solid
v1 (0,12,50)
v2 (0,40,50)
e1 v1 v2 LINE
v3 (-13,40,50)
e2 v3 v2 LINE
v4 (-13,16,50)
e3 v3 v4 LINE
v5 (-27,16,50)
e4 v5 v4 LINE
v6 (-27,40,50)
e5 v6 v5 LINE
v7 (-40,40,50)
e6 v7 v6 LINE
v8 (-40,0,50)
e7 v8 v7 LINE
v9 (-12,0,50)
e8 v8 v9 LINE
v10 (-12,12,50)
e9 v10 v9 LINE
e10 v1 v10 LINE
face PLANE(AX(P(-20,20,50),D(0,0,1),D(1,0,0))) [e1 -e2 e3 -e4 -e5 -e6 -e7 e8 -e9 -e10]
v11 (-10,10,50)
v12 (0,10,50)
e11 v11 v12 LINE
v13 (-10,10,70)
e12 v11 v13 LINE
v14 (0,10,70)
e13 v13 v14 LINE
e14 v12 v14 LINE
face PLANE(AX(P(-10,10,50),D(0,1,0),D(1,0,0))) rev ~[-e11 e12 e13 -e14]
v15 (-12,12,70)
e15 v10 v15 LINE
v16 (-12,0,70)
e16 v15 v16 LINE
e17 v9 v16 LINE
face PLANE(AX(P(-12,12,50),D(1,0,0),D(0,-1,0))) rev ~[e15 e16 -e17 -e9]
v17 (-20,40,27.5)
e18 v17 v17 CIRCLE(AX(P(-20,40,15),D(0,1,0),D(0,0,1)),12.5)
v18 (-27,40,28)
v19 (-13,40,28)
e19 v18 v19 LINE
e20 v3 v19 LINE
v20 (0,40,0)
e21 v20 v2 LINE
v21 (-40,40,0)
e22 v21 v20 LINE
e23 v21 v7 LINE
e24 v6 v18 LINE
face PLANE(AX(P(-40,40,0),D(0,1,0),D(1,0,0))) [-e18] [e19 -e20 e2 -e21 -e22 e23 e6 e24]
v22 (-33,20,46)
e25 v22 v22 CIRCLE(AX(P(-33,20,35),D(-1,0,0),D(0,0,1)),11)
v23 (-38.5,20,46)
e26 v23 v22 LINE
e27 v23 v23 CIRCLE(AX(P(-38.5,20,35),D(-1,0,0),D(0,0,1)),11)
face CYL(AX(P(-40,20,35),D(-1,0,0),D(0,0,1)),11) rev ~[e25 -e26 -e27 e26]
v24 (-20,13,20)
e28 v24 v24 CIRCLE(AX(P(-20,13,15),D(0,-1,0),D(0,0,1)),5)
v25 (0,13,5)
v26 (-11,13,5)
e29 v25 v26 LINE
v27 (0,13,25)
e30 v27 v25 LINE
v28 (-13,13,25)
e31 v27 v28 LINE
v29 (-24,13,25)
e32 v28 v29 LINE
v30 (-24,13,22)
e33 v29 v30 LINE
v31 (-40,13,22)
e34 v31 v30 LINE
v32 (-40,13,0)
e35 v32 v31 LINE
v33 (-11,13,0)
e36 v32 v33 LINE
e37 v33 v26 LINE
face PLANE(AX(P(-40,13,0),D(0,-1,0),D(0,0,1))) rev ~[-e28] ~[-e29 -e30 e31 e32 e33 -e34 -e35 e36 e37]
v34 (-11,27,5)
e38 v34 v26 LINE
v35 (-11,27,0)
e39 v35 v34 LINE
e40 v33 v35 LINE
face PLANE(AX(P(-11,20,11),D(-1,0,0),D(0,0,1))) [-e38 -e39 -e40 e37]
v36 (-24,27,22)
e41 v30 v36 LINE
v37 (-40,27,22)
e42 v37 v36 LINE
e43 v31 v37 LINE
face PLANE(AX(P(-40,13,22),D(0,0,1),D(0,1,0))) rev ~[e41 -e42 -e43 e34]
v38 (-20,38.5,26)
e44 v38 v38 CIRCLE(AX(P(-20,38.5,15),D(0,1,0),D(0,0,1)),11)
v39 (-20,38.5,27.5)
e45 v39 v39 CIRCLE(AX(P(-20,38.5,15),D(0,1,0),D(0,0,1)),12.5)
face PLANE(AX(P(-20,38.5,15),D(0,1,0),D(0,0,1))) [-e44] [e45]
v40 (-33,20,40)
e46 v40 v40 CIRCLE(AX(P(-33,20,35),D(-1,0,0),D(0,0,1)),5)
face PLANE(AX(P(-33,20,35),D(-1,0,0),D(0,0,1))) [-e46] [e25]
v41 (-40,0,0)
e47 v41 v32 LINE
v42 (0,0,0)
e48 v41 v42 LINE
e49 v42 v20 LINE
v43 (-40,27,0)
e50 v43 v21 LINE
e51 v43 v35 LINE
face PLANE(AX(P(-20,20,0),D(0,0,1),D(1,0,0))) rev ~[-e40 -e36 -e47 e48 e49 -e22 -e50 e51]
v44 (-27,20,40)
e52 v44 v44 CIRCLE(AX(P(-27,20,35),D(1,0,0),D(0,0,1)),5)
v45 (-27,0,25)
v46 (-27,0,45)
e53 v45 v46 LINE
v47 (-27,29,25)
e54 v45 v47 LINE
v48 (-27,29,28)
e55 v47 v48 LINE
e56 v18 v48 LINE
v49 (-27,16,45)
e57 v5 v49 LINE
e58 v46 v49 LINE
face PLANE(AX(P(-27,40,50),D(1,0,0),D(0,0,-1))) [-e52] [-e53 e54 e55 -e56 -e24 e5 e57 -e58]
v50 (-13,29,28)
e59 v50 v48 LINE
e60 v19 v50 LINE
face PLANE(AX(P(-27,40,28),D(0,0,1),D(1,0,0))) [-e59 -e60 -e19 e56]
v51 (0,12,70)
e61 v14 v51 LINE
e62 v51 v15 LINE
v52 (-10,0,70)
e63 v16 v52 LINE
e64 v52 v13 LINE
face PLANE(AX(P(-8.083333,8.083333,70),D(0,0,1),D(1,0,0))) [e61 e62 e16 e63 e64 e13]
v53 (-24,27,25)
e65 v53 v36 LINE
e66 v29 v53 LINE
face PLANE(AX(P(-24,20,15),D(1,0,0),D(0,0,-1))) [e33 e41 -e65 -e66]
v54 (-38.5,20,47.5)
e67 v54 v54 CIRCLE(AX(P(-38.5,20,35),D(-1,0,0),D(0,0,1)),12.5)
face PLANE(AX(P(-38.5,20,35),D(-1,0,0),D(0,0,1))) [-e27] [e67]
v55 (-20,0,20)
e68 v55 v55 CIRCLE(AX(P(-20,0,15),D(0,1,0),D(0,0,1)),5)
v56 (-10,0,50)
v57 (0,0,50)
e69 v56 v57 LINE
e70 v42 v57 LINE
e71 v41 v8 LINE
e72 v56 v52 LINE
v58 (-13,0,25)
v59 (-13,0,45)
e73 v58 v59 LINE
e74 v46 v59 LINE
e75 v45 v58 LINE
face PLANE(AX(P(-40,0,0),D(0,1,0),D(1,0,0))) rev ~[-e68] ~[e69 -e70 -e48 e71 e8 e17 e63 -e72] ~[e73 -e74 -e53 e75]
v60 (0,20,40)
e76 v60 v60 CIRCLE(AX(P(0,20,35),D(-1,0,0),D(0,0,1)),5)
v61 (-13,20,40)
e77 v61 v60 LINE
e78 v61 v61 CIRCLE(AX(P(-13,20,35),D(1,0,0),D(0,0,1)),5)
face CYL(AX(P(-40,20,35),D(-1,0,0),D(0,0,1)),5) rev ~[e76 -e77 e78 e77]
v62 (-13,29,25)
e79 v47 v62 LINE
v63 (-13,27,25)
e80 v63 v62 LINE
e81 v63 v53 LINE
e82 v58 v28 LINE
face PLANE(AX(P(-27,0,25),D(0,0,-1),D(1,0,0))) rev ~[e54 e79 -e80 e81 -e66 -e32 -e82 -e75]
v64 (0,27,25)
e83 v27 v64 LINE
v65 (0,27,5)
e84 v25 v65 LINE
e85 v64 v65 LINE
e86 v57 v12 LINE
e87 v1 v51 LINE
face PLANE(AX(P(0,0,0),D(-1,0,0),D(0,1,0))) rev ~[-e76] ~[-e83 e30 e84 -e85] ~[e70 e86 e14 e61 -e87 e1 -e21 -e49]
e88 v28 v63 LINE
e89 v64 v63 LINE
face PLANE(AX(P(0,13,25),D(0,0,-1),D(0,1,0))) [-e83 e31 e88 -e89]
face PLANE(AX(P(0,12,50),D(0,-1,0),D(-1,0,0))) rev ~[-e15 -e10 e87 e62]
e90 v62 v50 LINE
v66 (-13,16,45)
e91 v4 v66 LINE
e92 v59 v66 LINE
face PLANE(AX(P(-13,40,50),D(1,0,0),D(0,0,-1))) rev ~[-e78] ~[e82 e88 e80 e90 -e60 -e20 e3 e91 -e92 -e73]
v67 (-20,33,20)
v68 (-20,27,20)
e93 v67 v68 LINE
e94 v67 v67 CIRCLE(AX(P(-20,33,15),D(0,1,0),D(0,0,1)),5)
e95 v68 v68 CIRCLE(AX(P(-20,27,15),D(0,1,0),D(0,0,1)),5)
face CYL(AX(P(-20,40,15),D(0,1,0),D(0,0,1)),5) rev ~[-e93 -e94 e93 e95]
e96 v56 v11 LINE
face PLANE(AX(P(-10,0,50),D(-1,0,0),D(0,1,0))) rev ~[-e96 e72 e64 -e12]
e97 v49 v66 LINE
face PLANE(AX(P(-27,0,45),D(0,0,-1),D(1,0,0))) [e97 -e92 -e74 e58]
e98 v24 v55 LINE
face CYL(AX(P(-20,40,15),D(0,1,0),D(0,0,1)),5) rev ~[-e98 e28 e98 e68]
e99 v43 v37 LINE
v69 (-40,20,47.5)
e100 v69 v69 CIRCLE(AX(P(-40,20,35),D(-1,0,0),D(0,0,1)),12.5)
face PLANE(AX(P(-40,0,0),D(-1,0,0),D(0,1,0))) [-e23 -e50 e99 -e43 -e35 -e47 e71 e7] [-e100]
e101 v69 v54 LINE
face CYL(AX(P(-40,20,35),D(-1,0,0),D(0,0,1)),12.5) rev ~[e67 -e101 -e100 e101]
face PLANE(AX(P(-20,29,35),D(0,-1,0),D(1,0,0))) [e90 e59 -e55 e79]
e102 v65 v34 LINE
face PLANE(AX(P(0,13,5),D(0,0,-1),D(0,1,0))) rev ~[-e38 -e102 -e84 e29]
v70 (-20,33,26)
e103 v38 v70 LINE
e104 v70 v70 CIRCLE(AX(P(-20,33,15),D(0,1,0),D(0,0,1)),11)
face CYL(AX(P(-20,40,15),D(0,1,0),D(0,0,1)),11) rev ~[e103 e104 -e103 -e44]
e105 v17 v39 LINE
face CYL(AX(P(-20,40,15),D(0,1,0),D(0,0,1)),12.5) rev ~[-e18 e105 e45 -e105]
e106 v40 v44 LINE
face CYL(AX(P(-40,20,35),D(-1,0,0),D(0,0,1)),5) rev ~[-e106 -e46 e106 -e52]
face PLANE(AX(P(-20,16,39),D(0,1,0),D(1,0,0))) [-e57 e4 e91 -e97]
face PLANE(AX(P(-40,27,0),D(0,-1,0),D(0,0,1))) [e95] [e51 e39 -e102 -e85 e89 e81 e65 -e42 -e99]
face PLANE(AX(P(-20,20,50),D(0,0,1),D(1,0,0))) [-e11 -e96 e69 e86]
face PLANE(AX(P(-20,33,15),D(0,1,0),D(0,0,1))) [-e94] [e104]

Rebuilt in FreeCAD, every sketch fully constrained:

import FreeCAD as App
import Part
import Sketcher
from FreeCAD import Vector

doc = App.newDocument("Part")
body = doc.addObject("PartDesign::Body", "Body")

# Sketch on XY plane
sketch1 = doc.addObject("Sketcher::SketchObject", "Sketch")
body.addObject(sketch1)
sketch1.AttachmentSupport = (doc.XY_Plane, [""])
sketch1.MapMode = "FlatFace"
sketch1.addGeometry(Part.LineSegment(Vector(-40, 40, 0), Vector(-40, 0, 0)), False)
sketch1.addGeometry(Part.LineSegment(Vector(-40, 0, 0), Vector(0, 0, 0)), False)
sketch1.addGeometry(Part.LineSegment(Vector(0, 0, 0), Vector(0, 40, 0)), False)
sketch1.addGeometry(Part.LineSegment(Vector(0, 40, 0), Vector(-40, 40, 0)), False)
sketch1.addConstraint(Sketcher.Constraint("Coincident", 0, 2, 1, 1))
sketch1.addConstraint(Sketcher.Constraint("Coincident", 1, 2, 2, 1))
sketch1.addConstraint(Sketcher.Constraint("Coincident", 2, 2, 3, 1))
sketch1.addConstraint(Sketcher.Constraint("Coincident", 3, 2, 0, 1))
sketch1.addConstraint(Sketcher.Constraint("Vertical", 0))
sketch1.addConstraint(Sketcher.Constraint("Horizontal", 1))
sketch1.addConstraint(Sketcher.Constraint("Vertical", 2))
sketch1.addConstraint(Sketcher.Constraint("Horizontal", 3))
sketch1.addConstraint(Sketcher.Constraint("Coincident", 1, 2, -1, 1))
sketch1.addConstraint(Sketcher.Constraint("Equal", 3, 0))
sketch1.addConstraint(Sketcher.Constraint("DistanceX", 1, 1, 1, 2, 40.0))
pad1 = doc.addObject("PartDesign::Pad", "Pad")
body.addObject(pad1)
pad1.Profile = sketch1
pad1.Length = 50

# Sketch on XZ plane
sketch2 = doc.addObject("Sketcher::SketchObject", "Sketch001")
body.addObject(sketch2)
sketch2.AttachmentSupport = (doc.XZ_Plane, [""])
sketch2.MapMode = "FlatFace"
sketch2.AttachmentOffset = App.Placement(Vector(0, 0, -40), App.Rotation())
sketch2.addGeometry(Part.Circle(Vector(-20, 15, 0), Vector(0, 0, 1), 5), False)
sketch2.addConstraint(Sketcher.Constraint("Diameter", 0, 10.0))
sketch2.addConstraint(Sketcher.Constraint("DistanceX", 0, 3, -1, 1, 20.0))
sketch2.addConstraint(Sketcher.Constraint("DistanceY", -1, 1, 0, 3, 15.0))
pocket1 = doc.addObject("PartDesign::Pocket", "Pocket")
body.addObject(pocket1)
pocket1.Profile = sketch2
pocket1.Type = "ThroughAll"
pocket1.Reversed = True

# Sketch on YZ plane
sketch3 = doc.addObject("Sketcher::SketchObject", "Sketch002")
body.addObject(sketch3)
sketch3.AttachmentSupport = (doc.YZ_Plane, [""])
sketch3.MapMode = "FlatFace"
sketch3.AttachmentOffset = App.Placement(Vector(0, 0, -40), App.Rotation())
sketch3.addGeometry(Part.Circle(Vector(20, 35, 0), Vector(0, 0, 1), 5), False)
sketch3.addConstraint(Sketcher.Constraint("Diameter", 0, 10.0))
sketch3.addConstraint(Sketcher.Constraint("DistanceX", -1, 1, 0, 3, 20.0))
sketch3.addConstraint(Sketcher.Constraint("DistanceY", -1, 1, 0, 3, 35.0))
pocket2 = doc.addObject("PartDesign::Pocket", "Pocket001")
body.addObject(pocket2)
pocket2.Profile = sketch3
pocket2.Type = "ThroughAll"
pocket2.Reversed = True

# Sketch on YZ plane
sketch4 = doc.addObject("Sketcher::SketchObject", "Sketch003")
body.addObject(sketch4)
sketch4.AttachmentSupport = (doc.YZ_Plane, [""])
sketch4.MapMode = "FlatFace"
sketch4.AttachmentOffset = App.Placement(Vector(0, 0, -40), App.Rotation())
sketch4.addGeometry(Part.LineSegment(Vector(27, 0, 0), Vector(13, 0, 0)), False)
sketch4.addGeometry(Part.LineSegment(Vector(13, 0, 0), Vector(13, 22, 0)), False)
sketch4.addGeometry(Part.LineSegment(Vector(13, 22, 0), Vector(27, 22, 0)), False)
sketch4.addGeometry(Part.LineSegment(Vector(27, 22, 0), Vector(27, 0, 0)), False)
sketch4.addConstraint(Sketcher.Constraint("Coincident", 0, 2, 1, 1))
sketch4.addConstraint(Sketcher.Constraint("Coincident", 1, 2, 2, 1))
sketch4.addConstraint(Sketcher.Constraint("Coincident", 2, 2, 3, 1))
sketch4.addConstraint(Sketcher.Constraint("Coincident", 3, 2, 0, 1))
sketch4.addConstraint(Sketcher.Constraint("Horizontal", 0))
sketch4.addConstraint(Sketcher.Constraint("Vertical", 1))
sketch4.addConstraint(Sketcher.Constraint("Horizontal", 2))
sketch4.addConstraint(Sketcher.Constraint("Vertical", 3))
sketch4.addConstraint(Sketcher.Constraint("PointOnObject", 0, 2, -1))
sketch4.addConstraint(Sketcher.Constraint("DistanceX", 0, 2, 0, 1, 14.0))
sketch4.addConstraint(Sketcher.Constraint("DistanceY", 1, 1, 1, 2, 22.0))
sketch4.addConstraint(Sketcher.Constraint("DistanceX", -1, 1, 0, 2, 13.0))
pocket3 = doc.addObject("PartDesign::Pocket", "Pocket002")
body.addObject(pocket3)
pocket3.Profile = sketch4
pocket3.Length = 29
pocket3.Reversed = True

# Sketch on XZ plane
sketch5 = doc.addObject("Sketcher::SketchObject", "Sketch004")
body.addObject(sketch5)
sketch5.AttachmentSupport = (doc.XZ_Plane, [""])
sketch5.MapMode = "FlatFace"
sketch5.addGeometry(Part.LineSegment(Vector(-27, 45, 0), Vector(-27, 25, 0)), False)
sketch5.addGeometry(Part.LineSegment(Vector(-27, 25, 0), Vector(-13, 25, 0)), False)
sketch5.addGeometry(Part.LineSegment(Vector(-13, 25, 0), Vector(-13, 45, 0)), False)
sketch5.addGeometry(Part.LineSegment(Vector(-13, 45, 0), Vector(-27, 45, 0)), False)
sketch5.addConstraint(Sketcher.Constraint("Coincident", 0, 2, 1, 1))
sketch5.addConstraint(Sketcher.Constraint("Coincident", 1, 2, 2, 1))
sketch5.addConstraint(Sketcher.Constraint("Coincident", 2, 2, 3, 1))
sketch5.addConstraint(Sketcher.Constraint("Coincident", 3, 2, 0, 1))
sketch5.addConstraint(Sketcher.Constraint("Vertical", 0))
sketch5.addConstraint(Sketcher.Constraint("Horizontal", 1))
sketch5.addConstraint(Sketcher.Constraint("Vertical", 2))
sketch5.addConstraint(Sketcher.Constraint("Horizontal", 3))
sketch5.addConstraint(Sketcher.Constraint("DistanceX", 1, 1, 1, 2, 14.0))
sketch5.addConstraint(Sketcher.Constraint("DistanceY", 0, 2, 0, 1, 20.0))
sketch5.addConstraint(Sketcher.Constraint("DistanceX", 0, 2, -1, 1, 27.0))
sketch5.addConstraint(Sketcher.Constraint("DistanceY", -1, 1, 0, 2, 25.0))
pocket4 = doc.addObject("PartDesign::Pocket", "Pocket003")
body.addObject(pocket4)
pocket4.Profile = sketch5
pocket4.Length = 29

# Sketch on YZ plane
sketch6 = doc.addObject("Sketcher::SketchObject", "Sketch005")
body.addObject(sketch6)
sketch6.AttachmentSupport = (doc.YZ_Plane, [""])
sketch6.MapMode = "FlatFace"
sketch6.addGeometry(Part.LineSegment(Vector(27, 25, 0), Vector(13, 25, 0)), False)
sketch6.addGeometry(Part.LineSegment(Vector(13, 25, 0), Vector(13, 5, 0)), False)
sketch6.addGeometry(Part.LineSegment(Vector(13, 5, 0), Vector(27, 5, 0)), False)
sketch6.addGeometry(Part.LineSegment(Vector(27, 5, 0), Vector(27, 25, 0)), False)
sketch6.addConstraint(Sketcher.Constraint("Coincident", 0, 2, 1, 1))
sketch6.addConstraint(Sketcher.Constraint("Coincident", 1, 2, 2, 1))
sketch6.addConstraint(Sketcher.Constraint("Coincident", 2, 2, 3, 1))
sketch6.addConstraint(Sketcher.Constraint("Coincident", 3, 2, 0, 1))
sketch6.addConstraint(Sketcher.Constraint("Horizontal", 0))
sketch6.addConstraint(Sketcher.Constraint("Vertical", 1))
sketch6.addConstraint(Sketcher.Constraint("Horizontal", 2))
sketch6.addConstraint(Sketcher.Constraint("Vertical", 3))
sketch6.addConstraint(Sketcher.Constraint("DistanceX", 0, 2, 0, 1, 14.0))
sketch6.addConstraint(Sketcher.Constraint("DistanceY", 1, 2, 1, 1, 20.0))
sketch6.addConstraint(Sketcher.Constraint("DistanceX", -1, 1, 0, 2, 13.0))
sketch6.addConstraint(Sketcher.Constraint("DistanceY", -1, 1, 0, 2, 25.0))
pocket5 = doc.addObject("PartDesign::Pocket", "Pocket004")
body.addObject(pocket5)
pocket5.Profile = sketch6
pocket5.Length = 24

# Sketch on XZ plane
sketch7 = doc.addObject("Sketcher::SketchObject", "Sketch006")
body.addObject(sketch7)
sketch7.AttachmentSupport = (doc.XZ_Plane, [""])
sketch7.MapMode = "FlatFace"
sketch7.AttachmentOffset = App.Placement(Vector(0, 0, -40), App.Rotation())
sketch7.addGeometry(Part.LineSegment(Vector(-27, 28, 0), Vector(-27, 50, 0)), False)
sketch7.addGeometry(Part.LineSegment(Vector(-27, 50, 0), Vector(-13, 50, 0)), False)
sketch7.addGeometry(Part.LineSegment(Vector(-13, 50, 0), Vector(-13, 28, 0)), False)
sketch7.addGeometry(Part.LineSegment(Vector(-13, 28, 0), Vector(-27, 28, 0)), False)
sketch7.addConstraint(Sketcher.Constraint("Coincident", 0, 2, 1, 1))
sketch7.addConstraint(Sketcher.Constraint("Coincident", 1, 2, 2, 1))
sketch7.addConstraint(Sketcher.Constraint("Coincident", 2, 2, 3, 1))
sketch7.addConstraint(Sketcher.Constraint("Coincident", 3, 2, 0, 1))
sketch7.addConstraint(Sketcher.Constraint("Vertical", 0))
sketch7.addConstraint(Sketcher.Constraint("Horizontal", 1))
sketch7.addConstraint(Sketcher.Constraint("Vertical", 2))
sketch7.addConstraint(Sketcher.Constraint("Horizontal", 3))
sketch7.addConstraint(Sketcher.Constraint("DistanceX", 1, 1, 1, 2, 14.0))
sketch7.addConstraint(Sketcher.Constraint("DistanceY", 0, 1, 0, 2, 22.0))
sketch7.addConstraint(Sketcher.Constraint("DistanceX", 0, 2, -1, 1, 27.0))
sketch7.addConstraint(Sketcher.Constraint("DistanceY", -1, 1, 0, 2, 50.0))
pocket6 = doc.addObject("PartDesign::Pocket", "Pocket005")
body.addObject(pocket6)
pocket6.Profile = sketch7
pocket6.Length = 24
pocket6.Reversed = True

# Sketch on XZ plane
sketch8 = doc.addObject("Sketcher::SketchObject", "Sketch007")
body.addObject(sketch8)
sketch8.AttachmentSupport = (doc.XZ_Plane, [""])
sketch8.MapMode = "FlatFace"
sketch8.AttachmentOffset = App.Placement(Vector(0, 0, -40), App.Rotation())
sketch8.addGeometry(Part.Circle(Vector(-20, 15, 0), Vector(0, 0, 1), 11), False)
sketch8.addConstraint(Sketcher.Constraint("Diameter", 0, 22.0))
sketch8.addConstraint(Sketcher.Constraint("DistanceX", 0, 3, -1, 1, 20.0))
sketch8.addConstraint(Sketcher.Constraint("DistanceY", -1, 1, 0, 3, 15.0))
pocket7 = doc.addObject("PartDesign::Pocket", "Pocket006")
body.addObject(pocket7)
pocket7.Profile = sketch8
pocket7.Length = 7
pocket7.Reversed = True

# Sketch on XZ plane
sketch9 = doc.addObject("Sketcher::SketchObject", "Sketch008")
body.addObject(sketch9)
sketch9.AttachmentSupport = (doc.XZ_Plane, [""])
sketch9.MapMode = "FlatFace"
sketch9.AttachmentOffset = App.Placement(Vector(0, 0, -40), App.Rotation())
sketch9.addGeometry(Part.Circle(Vector(-20, 15, 0), Vector(0, 0, 1), 12), False)
sketch9.addConstraint(Sketcher.Constraint("Diameter", 0, 25.0))
sketch9.addConstraint(Sketcher.Constraint("DistanceX", 0, 3, -1, 1, 20.0))
sketch9.addConstraint(Sketcher.Constraint("DistanceY", -1, 1, 0, 3, 15.0))
pocket8 = doc.addObject("PartDesign::Pocket", "Pocket007")
body.addObject(pocket8)
pocket8.Profile = sketch9
pocket8.Length = 1.5
pocket8.Reversed = True

# Sketch on XY plane
sketch10 = doc.addObject("Sketcher::SketchObject", "Sketch009")
body.addObject(sketch10)
sketch10.AttachmentSupport = (doc.XY_Plane, [""])
sketch10.MapMode = "FlatFace"
sketch10.AttachmentOffset = App.Placement(Vector(0, 0, 50), App.Rotation())
sketch10.addGeometry(Part.LineSegment(Vector(-10, 0, 0), Vector(-10, 10, 0)), False)
sketch10.addGeometry(Part.LineSegment(Vector(-10, 10, 0), Vector(0, 10, 0)), False)
sketch10.addGeometry(Part.LineSegment(Vector(0, 10, 0), Vector(0, 12, 0)), False)
sketch10.addGeometry(Part.LineSegment(Vector(0, 12, 0), Vector(-12, 12, 0)), False)
sketch10.addGeometry(Part.LineSegment(Vector(-12, 12, 0), Vector(-12, 0, 0)), False)
sketch10.addGeometry(Part.LineSegment(Vector(-12, 0, 0), Vector(-10, 0, 0)), False)
sketch10.addConstraint(Sketcher.Constraint("Coincident", 0, 2, 1, 1))
sketch10.addConstraint(Sketcher.Constraint("Coincident", 1, 2, 2, 1))
sketch10.addConstraint(Sketcher.Constraint("Coincident", 2, 2, 3, 1))
sketch10.addConstraint(Sketcher.Constraint("Coincident", 3, 2, 4, 1))
sketch10.addConstraint(Sketcher.Constraint("Coincident", 4, 2, 5, 1))
sketch10.addConstraint(Sketcher.Constraint("Coincident", 5, 2, 0, 1))
sketch10.addConstraint(Sketcher.Constraint("Vertical", 0))
sketch10.addConstraint(Sketcher.Constraint("Horizontal", 1))
sketch10.addConstraint(Sketcher.Constraint("Vertical", 2))
sketch10.addConstraint(Sketcher.Constraint("Horizontal", 3))
sketch10.addConstraint(Sketcher.Constraint("Vertical", 4))
sketch10.addConstraint(Sketcher.Constraint("Horizontal", 5))
sketch10.addConstraint(Sketcher.Constraint("PointOnObject", 1, 2, -2))
sketch10.addConstraint(Sketcher.Constraint("PointOnObject", 4, 2, -1))
sketch10.addConstraint(Sketcher.Constraint("Equal", 1, 0))
sketch10.addConstraint(Sketcher.Constraint("Equal", 5, 2))
sketch10.addConstraint(Sketcher.Constraint("DistanceX", 1, 1, 1, 2, 10.0))
sketch10.addConstraint(Sketcher.Constraint("DistanceX", 3, 2, 3, 1, 12.0))
pad2 = doc.addObject("PartDesign::Pad", "Pad001")
body.addObject(pad2)
pad2.Profile = sketch10
pad2.Length = 20

# Sketch on YZ plane
sketch11 = doc.addObject("Sketcher::SketchObject", "Sketch010")
body.addObject(sketch11)
sketch11.AttachmentSupport = (doc.YZ_Plane, [""])
sketch11.MapMode = "FlatFace"
sketch11.AttachmentOffset = App.Placement(Vector(0, 0, -40), App.Rotation())
sketch11.addGeometry(Part.Circle(Vector(20, 35, 0), Vector(0, 0, 1), 11), False)
sketch11.addConstraint(Sketcher.Constraint("Diameter", 0, 22.0))
sketch11.addConstraint(Sketcher.Constraint("DistanceX", -1, 1, 0, 3, 20.0))
sketch11.addConstraint(Sketcher.Constraint("DistanceY", -1, 1, 0, 3, 35.0))
pocket9 = doc.addObject("PartDesign::Pocket", "Pocket008")
body.addObject(pocket9)
pocket9.Profile = sketch11
pocket9.Length = 7
pocket9.Reversed = True

# Sketch on YZ plane
sketch12 = doc.addObject("Sketcher::SketchObject", "Sketch011")
body.addObject(sketch12)
sketch12.AttachmentSupport = (doc.YZ_Plane, [""])
sketch12.MapMode = "FlatFace"
sketch12.AttachmentOffset = App.Placement(Vector(0, 0, -40), App.Rotation())
sketch12.addGeometry(Part.Circle(Vector(20, 35, 0), Vector(0, 0, 1), 12), False)
sketch12.addConstraint(Sketcher.Constraint("Diameter", 0, 25.0))
sketch12.addConstraint(Sketcher.Constraint("DistanceX", -1, 1, 0, 3, 20.0))
sketch12.addConstraint(Sketcher.Constraint("DistanceY", -1, 1, 0, 3, 35.0))
pocket10 = doc.addObject("PartDesign::Pocket", "Pocket009")
body.addObject(pocket10)
pocket10.Profile = sketch12
pocket10.Length = 1.5
pocket10.Reversed = True

doc.recompute()
